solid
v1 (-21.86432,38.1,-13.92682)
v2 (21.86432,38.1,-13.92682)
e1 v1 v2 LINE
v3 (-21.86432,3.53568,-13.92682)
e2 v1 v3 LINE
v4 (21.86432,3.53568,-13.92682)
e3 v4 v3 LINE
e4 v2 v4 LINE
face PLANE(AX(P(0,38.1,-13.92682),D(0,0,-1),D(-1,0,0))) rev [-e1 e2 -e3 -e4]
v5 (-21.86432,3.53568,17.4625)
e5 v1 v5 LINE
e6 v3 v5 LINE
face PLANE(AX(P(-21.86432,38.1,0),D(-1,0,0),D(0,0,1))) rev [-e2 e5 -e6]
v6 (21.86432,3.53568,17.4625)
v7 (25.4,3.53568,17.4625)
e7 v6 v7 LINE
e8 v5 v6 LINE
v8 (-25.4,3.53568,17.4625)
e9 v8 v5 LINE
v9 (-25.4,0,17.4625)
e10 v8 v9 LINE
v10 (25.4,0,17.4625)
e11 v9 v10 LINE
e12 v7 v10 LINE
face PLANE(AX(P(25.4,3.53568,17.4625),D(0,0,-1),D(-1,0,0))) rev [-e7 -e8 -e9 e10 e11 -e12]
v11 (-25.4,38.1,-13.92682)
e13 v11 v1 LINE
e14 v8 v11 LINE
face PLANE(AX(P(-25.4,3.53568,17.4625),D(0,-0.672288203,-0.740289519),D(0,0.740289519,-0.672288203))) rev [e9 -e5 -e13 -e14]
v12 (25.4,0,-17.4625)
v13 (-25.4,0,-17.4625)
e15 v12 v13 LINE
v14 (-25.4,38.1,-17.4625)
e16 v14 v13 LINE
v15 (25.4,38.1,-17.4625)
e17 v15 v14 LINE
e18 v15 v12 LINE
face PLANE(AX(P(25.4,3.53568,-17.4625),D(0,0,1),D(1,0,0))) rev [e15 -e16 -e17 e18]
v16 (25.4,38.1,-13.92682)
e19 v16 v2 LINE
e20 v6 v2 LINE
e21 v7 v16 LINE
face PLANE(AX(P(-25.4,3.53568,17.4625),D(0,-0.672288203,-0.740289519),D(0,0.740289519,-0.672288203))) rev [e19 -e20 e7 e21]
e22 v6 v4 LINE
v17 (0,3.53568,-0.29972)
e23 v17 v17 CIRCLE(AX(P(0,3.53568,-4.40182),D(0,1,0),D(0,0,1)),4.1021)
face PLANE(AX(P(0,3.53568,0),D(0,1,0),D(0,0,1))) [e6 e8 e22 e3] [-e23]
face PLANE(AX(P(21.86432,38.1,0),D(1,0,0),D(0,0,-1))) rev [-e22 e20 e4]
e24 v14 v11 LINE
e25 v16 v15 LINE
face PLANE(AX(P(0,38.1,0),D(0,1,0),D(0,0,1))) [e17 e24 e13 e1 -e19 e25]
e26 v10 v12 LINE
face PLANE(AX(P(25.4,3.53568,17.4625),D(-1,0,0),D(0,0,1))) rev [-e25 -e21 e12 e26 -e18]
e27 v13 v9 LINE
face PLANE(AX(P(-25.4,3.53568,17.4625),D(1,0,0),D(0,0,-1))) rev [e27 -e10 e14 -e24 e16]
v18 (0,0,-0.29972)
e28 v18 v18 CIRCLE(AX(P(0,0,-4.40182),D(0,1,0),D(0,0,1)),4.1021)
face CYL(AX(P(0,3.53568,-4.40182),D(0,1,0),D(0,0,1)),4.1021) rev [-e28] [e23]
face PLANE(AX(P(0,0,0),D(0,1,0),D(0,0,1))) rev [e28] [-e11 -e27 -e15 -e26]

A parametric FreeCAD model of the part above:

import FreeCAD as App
import Part
import Sketcher
from FreeCAD import Vector
Q = App.Units.Quantity

doc = App.newDocument("Part")
body = doc.addObject("PartDesign::Body", "Body")

# Sketch on XZ plane
sketch1 = doc.addObject("Sketcher::SketchObject", "Sketch")
body.addObject(sketch1)
sketch1.AttachmentSupport = (doc.XZ_Plane, [""])
sketch1.MapMode = "FlatFace"
sketch1.addGeometry(Part.LineSegment(Vector(-25.4, -17.4625, 0), Vector(-25.4, 17.4625, 0)), False)
sketch1.addGeometry(Part.LineSegment(Vector(-25.4, 17.4625, 0), Vector(25.4, 17.4625, 0)), False)
sketch1.addGeometry(Part.LineSegment(Vector(25.4, 17.4625, 0), Vector(25.4, -17.4625, 0)), False)
sketch1.addGeometry(Part.LineSegment(Vector(25.4, -17.4625, 0), Vector(-25.4, -17.4625, 0)), False)
sketch1.addConstraint(Sketcher.Constraint("Coincident", 0, 2, 1, 1))
sketch1.addConstraint(Sketcher.Constraint("Coincident", 1, 2, 2, 1))
sketch1.addConstraint(Sketcher.Constraint("Coincident", 2, 2, 3, 1))
sketch1.addConstraint(Sketcher.Constraint("Coincident", 3, 2, 0, 1))
sketch1.addConstraint(Sketcher.Constraint("Vertical", 0))
sketch1.addConstraint(Sketcher.Constraint("Horizontal", 1))
sketch1.addConstraint(Sketcher.Constraint("Vertical", 2))
sketch1.addConstraint(Sketcher.Constraint("Horizontal", 3))
sketch1.addConstraint(Sketcher.Constraint("Symmetric", 0, 2, 2, 2, -1, 1))
sketch1.addConstraint(Sketcher.Constraint("DistanceX", 1, 1, 1, 2, Q("2 in")))
sketch1.addConstraint(Sketcher.Constraint("DistanceY", 0, 1, 0, 2, Q("1.375 in")))
pad1 = doc.addObject("PartDesign::Pad", "Pad")
body.addObject(pad1)
pad1.Profile = sketch1
pad1.Length = Q("0.1392 in")
pad1.Reversed = True

# Sketch on XZ plane
sketch2 = doc.addObject("Sketcher::SketchObject", "Sketch001")
body.addObject(sketch2)
sketch2.AttachmentSupport = (doc.XZ_Plane, [""])
sketch2.MapMode = "FlatFace"
sketch2.addGeometry(Part.LineSegment(Vector(21.86432, 17.4625, 0), Vector(25.4, 17.4625, 0)), False)
sketch2.addGeometry(Part.LineSegment(Vector(25.4, 17.4625, 0), Vector(25.4, -17.4625, 0)), False)
sketch2.addGeometry(Part.LineSegment(Vector(25.4, -17.4625, 0), Vector(-25.4, -17.4625, 0)), False)
sketch2.addGeometry(Part.LineSegment(Vector(-25.4, -17.4625, 0), Vector(-25.4, 17.4625, 0)), False)
sketch2.addGeometry(Part.LineSegment(Vector(-25.4, 17.4625, 0), Vector(-21.86432, 17.4625, 0)), False)
sketch2.addGeometry(Part.LineSegment(Vector(-21.86432, 17.4625, 0), Vector(-21.86432, -13.92682, 0)), False)
sketch2.addGeometry(Part.LineSegment(Vector(-21.86432, -13.92682, 0), Vector(21.86432, -13.92682, 0)), False)
sketch2.addGeometry(Part.LineSegment(Vector(21.86432, -13.92682, 0), Vector(21.86432, 17.4625, 0)), False)
sketch2.addConstraint(Sketcher.Constraint("Coincident", 0, 2, 1, 1))
sketch2.addConstraint(Sketcher.Constraint("Coincident", 1, 2, 2, 1))
sketch2.addConstraint(Sketcher.Constraint("Coincident", 2, 2, 3, 1))
sketch2.addConstraint(Sketcher.Constraint("Coincident", 3, 2, 4, 1))
sketch2.addConstraint(Sketcher.Constraint("Coincident", 4, 2, 5, 1))
sketch2.addConstraint(Sketcher.Constraint("Coincident", 5, 2, 6, 1))
sketch2.addConstraint(Sketcher.Constraint("Coincident", 6, 2, 7, 1))
sketch2.addConstraint(Sketcher.Constraint("Coincident", 7, 2, 0, 1))
sketch2.addConstraint(Sketcher.Constraint("Horizontal", 0))
sketch2.addConstraint(Sketcher.Constraint("Vertical", 1))
sketch2.addConstraint(Sketcher.Constraint("Horizontal", 2))
sketch2.addConstraint(Sketcher.Constraint("Vertical", 3))
sketch2.addConstraint(Sketcher.Constraint("Horizontal", 4))
sketch2.addConstraint(Sketcher.Constraint("Vertical", 5))
sketch2.addConstraint(Sketcher.Constraint("Horizontal", 6))
sketch2.addConstraint(Sketcher.Constraint("Vertical", 7))
sketch2.addConstraint(Sketcher.Constraint("Symmetric", 0, 2, 2, 2, -1, 1))
sketch2.addConstraint(Sketcher.Constraint("Symmetric", 4, 2, 7, 2, -2))
sketch2.addConstraint(Sketcher.Constraint("DistanceX", 2, 2, 2, 1, Q("2 in")))
sketch2.addConstraint(Sketcher.Constraint("DistanceY", 1, 2, 1, 1, Q("1.375 in")))
sketch2.addConstraint(Sketcher.Constraint("DistanceX", 0, 1, 0, 2, Q("0.1392 in")))
sketch2.addConstraint(Sketcher.Constraint("DistanceY", 5, 2, 5, 1, Q("1.2358 in")))
pad2 = doc.addObject("PartDesign::Pad", "Pad001")
body.addObject(pad2)
pad2.Profile = sketch2
pad2.Length = Q("1.5 in")
pad2.Reversed = True

# Sketch on YZ plane
sketch3 = doc.addObject("Sketcher::SketchObject", "Sketch002")
body.addObject(sketch3)
sketch3.AttachmentSupport = (doc.YZ_Plane, [""])
sketch3.MapMode = "FlatFace"
sketch3.AttachmentOffset = App.Placement(Vector(0, 0, 1 * 25.4), App.Rotation())
sketch3.addGeometry(Part.LineSegment(Vector(3.53568, 17.4625, 0), Vector(38.1, -13.92682, 0)), False)
sketch3.addGeometry(Part.LineSegment(Vector(38.1, -13.92682, 0), Vector(38.1, 17.4625, 0)), False)
sketch3.addGeometry(Part.LineSegment(Vector(38.1, 17.4625, 0), Vector(3.53568, 17.4625, 0)), False)
sketch3.addConstraint(Sketcher.Constraint("Coincident", 0, 2, 1, 1))
sketch3.addConstraint(Sketcher.Constraint("Coincident", 1, 2, 2, 1))
sketch3.addConstraint(Sketcher.Constraint("Coincident", 2, 2, 0, 1))
sketch3.addConstraint(Sketcher.Constraint("Vertical", 1))
sketch3.addConstraint(Sketcher.Constraint("Horizontal", 2))
sketch3.addConstraint(Sketcher.Constraint("DistanceX", -1, 1, 0, 2, Q("1.5 in")))
sketch3.addConstraint(Sketcher.Constraint("DistanceX", 2, 2, 2, 1, Q("1.3608 in")))
sketch3.addConstraint(Sketcher.Constraint("DistanceY", 1, 1, 1, 2, Q("1.2358 in")))
sketch3.addConstraint(Sketcher.Constraint("DistanceY", -1, 1, 1, 2, Q("0.6875 in")))
pocket1 = doc.addObject("PartDesign::Pocket", "Pocket")
body.addObject(pocket1)
pocket1.Profile = sketch3
pocket1.Type = "ThroughAll"

# Sketch on XZ plane
sketch4 = doc.addObject("Sketcher::SketchObject", "Sketch003")
body.addObject(sketch4)
sketch4.AttachmentSupport = (doc.XZ_Plane, [""])
sketch4.MapMode = "FlatFace"
sketch4.AttachmentOffset = App.Placement(Vector(0, 0, -0.1392 * 25.4), App.Rotation())
sketch4.addGeometry(Part.Circle(Vector(0, -4.40182, 0), Vector(0, 0, 1), 4.1021), False)
sketch4.addConstraint(Sketcher.Constraint("PointOnObject", 0, 3, -2))
sketch4.addConstraint(Sketcher.Constraint("Diameter", 0, Q("0.323 in")))
sketch4.addConstraint(Sketcher.Constraint("DistanceY", 0, 3, -1, 1, Q("0.1733 in")))
doc.recompute()
hole = doc.addObject("PartDesign::Hole", "Hole")
body.addObject(hole)
hole.Profile = sketch4
hole.ThreadType = "None"
hole.Diameter = Q("0.323 in")
hole.DepthType = "ThroughAll"
hole.Reversed = True

doc.recompute()
